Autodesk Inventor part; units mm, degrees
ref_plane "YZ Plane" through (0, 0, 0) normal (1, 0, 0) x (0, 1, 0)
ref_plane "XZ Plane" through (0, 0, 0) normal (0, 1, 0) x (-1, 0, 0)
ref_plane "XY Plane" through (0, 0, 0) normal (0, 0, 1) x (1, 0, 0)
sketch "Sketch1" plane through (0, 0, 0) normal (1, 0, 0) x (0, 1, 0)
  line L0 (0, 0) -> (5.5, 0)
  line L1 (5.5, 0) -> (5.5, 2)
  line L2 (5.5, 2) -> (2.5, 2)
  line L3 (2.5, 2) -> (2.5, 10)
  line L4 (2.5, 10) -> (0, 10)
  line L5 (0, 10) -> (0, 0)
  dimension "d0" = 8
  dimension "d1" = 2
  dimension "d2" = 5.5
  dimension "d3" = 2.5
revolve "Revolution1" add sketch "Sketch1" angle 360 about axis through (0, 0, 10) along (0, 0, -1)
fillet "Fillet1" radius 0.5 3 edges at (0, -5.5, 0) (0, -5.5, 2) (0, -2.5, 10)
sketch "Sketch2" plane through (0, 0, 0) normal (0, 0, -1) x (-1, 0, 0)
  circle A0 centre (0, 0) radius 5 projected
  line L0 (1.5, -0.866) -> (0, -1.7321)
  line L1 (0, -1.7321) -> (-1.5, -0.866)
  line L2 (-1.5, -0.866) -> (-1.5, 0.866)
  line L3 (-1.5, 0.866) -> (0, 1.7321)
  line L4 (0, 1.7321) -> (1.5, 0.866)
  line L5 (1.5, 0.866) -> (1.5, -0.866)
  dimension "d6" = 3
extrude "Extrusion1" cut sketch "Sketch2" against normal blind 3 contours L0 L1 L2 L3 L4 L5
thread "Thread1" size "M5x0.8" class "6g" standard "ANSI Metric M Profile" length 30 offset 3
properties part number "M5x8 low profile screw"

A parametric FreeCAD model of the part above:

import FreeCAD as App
import Part
import Sketcher

V = App.Vector


def edges_at(feature, points):
    """Names of the edges that pass closest to the given points."""
    edges = feature.Shape.Edges
    near = lambda p: min(range(len(edges)), key=lambda i: edges[i].distToShape(Part.Vertex(*p))[0])
    return sorted({f"Edge{near(p) + 1}" for p in points})

doc = App.newDocument("Part")
body = doc.addObject("PartDesign::Body", "Body")

# Sketch on YZ plane
sketch1 = body.newObject("Sketcher::SketchObject", "Sketch")
sketch1.AttachmentSupport = (doc.getObject("YZ_Plane"), [""])
sketch1.MapMode = "FlatFace"
sketch1.addGeometry([
    Part.LineSegment(V(0, 10, 0), V(0, 0, 0)),  # 0
    Part.LineSegment(V(0, 0, 0), V(5.5, 0, 0)),  # 1
    Part.LineSegment(V(5.5, 0, 0), V(5.5, 2, 0)),  # 2
    Part.LineSegment(V(5.5, 2, 0), V(2.5, 2, 0)),  # 3
    Part.LineSegment(V(2.5, 2, 0), V(2.5, 10, 0)),  # 4
    Part.LineSegment(V(2.5, 10, 0), V(0, 10, 0)),  # 5
], False)
sketch1.addConstraint([
    Sketcher.Constraint("Coincident", 0, 2, 1, 1),
    Sketcher.Constraint("Coincident", 1, 2, 2, 1),
    Sketcher.Constraint("Coincident", 2, 2, 3, 1),
    Sketcher.Constraint("Coincident", 3, 2, 4, 1),
    Sketcher.Constraint("Coincident", 4, 2, 5, 1),
    Sketcher.Constraint("Coincident", 5, 2, 0, 1),
    Sketcher.Constraint("Vertical", 0),
    Sketcher.Constraint("Horizontal", 1),
    Sketcher.Constraint("Vertical", 2),
    Sketcher.Constraint("Horizontal", 3),
    Sketcher.Constraint("Vertical", 4),
    Sketcher.Constraint("Horizontal", 5),
    Sketcher.Constraint("Coincident", 0, 2, -1, 1),
    Sketcher.Constraint("DistanceY", 2, 1, 2, 2, 2.0),
    Sketcher.Constraint("DistanceY", 4, 1, 4, 2, 8.0),
    Sketcher.Constraint("DistanceX", 1, 1, 1, 2, 5.5),
    Sketcher.Constraint("DistanceX", 5, 2, 5, 1, 2.5),
])
revolution = body.newObject("PartDesign::Revolution", "Revolution")
revolution.Profile = sketch1
revolution.ReferenceAxis = (sketch1, ["V_Axis"])
revolution.Angle = 360
doc.recompute()

fillet = body.newObject("PartDesign::Fillet", "Fillet")
fillet.Base = (revolution, edges_at(revolution, [(0, -5.5, 0), (0, -5.5, 2), (0, -2.5, 10)]))
fillet.Radius = 0.5

# Sketch on XY plane
sketch2 = body.newObject("Sketcher::SketchObject", "Sketch001")
sketch2.AttachmentSupport = (doc.getObject("XY_Plane"), [""])
sketch2.MapMode = "FlatFace"
sketch2.addGeometry([
    Part.LineSegment(V(0, -1.7, 0), V(-1.5, -0.9, 0)),  # 0
    Part.LineSegment(V(-1.5, -0.9, 0), V(-1.5, 0.9, 0)),  # 1
    Part.LineSegment(V(-1.5, 0.9, 0), V(0, 1.7, 0)),  # 2
    Part.LineSegment(V(0, 1.7, 0), V(1.5, 0.9, 0)),  # 3
    Part.LineSegment(V(1.5, 0.9, 0), V(1.5, -0.9, 0)),  # 4
    Part.LineSegment(V(1.5, -0.9, 0), V(0, -1.7, 0)),  # 5
], False)
sketch2.addConstraint([
    Sketcher.Constraint("Coincident", 0, 2, 1, 1),
    Sketcher.Constraint("Coincident", 1, 2, 2, 1),
    Sketcher.Constraint("Coincident", 2, 2, 3, 1),
    Sketcher.Constraint("Coincident", 3, 2, 4, 1),
    Sketcher.Constraint("Coincident", 4, 2, 5, 1),
    Sketcher.Constraint("Coincident", 5, 2, 0, 1),
    Sketcher.Constraint("Vertical", 1),
    Sketcher.Constraint("Vertical", 4),
    Sketcher.Constraint("Symmetric", 0, 2, 3, 2, -1, 1),
    Sketcher.Constraint("Symmetric", 2, 2, 5, 2, -1, 1),
    Sketcher.Constraint("PointOnObject", 2, 2, -2),
    Sketcher.Constraint("Parallel", 2, 5),
    Sketcher.Constraint("Horizontal", 1, 2, 3, 2),
    Sketcher.Constraint("DistanceX", 1, 2, 3, 2, 3.0),
    Sketcher.Constraint("DistanceY", 1, 1, 1, 2, 1.732),
    Sketcher.Constraint("Distance", 0, 1.732),
])
pocket1 = body.newObject("PartDesign::Pocket", "Pocket")
pocket1.Profile = sketch2
pocket1.Length = 3
pocket1.Reversed = True

doc.recompute()
